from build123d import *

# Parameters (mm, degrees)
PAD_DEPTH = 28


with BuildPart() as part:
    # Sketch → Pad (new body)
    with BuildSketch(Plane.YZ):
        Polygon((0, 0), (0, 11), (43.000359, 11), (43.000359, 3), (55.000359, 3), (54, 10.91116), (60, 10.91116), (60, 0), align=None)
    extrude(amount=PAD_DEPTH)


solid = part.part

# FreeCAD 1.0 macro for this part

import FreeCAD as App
import Part
import Sketcher

V = App.Vector
Q = App.Units.Quantity


def add_polygon(sketch, points):
    """Adds a closed chain of lines whose ends are joined by coincident constraints."""
    first, n = sketch.GeometryCount, len(points)
    for a, b in zip(points, points[1:] + points[:1]):
        sketch.addGeometry(Part.LineSegment(App.Vector(*a, 0), App.Vector(*b, 0)), False)
    for i in range(n):
        sketch.addConstraint(Sketcher.Constraint("Coincident", first + i, 2, first + (i + 1) % n, 1))

doc = App.newDocument("Part")
body = doc.addObject("PartDesign::Body", "Body")

# Sketch on YZ plane
sketch1 = body.newObject("Sketcher::SketchObject", "Sketch")
sketch1.AttachmentSupport = (doc.getObject("YZ_Plane"), [""])
sketch1.MapMode = "FlatFace"
add_polygon(sketch1, [(0, 11), (0, 0), (60, 0), (60, 10.91116), (54, 10.91116), (55.000359, 3), (43.000359, 3), (43.000359, 11)])  # lines 0-7
sketch1.addConstraint([
    Sketcher.Constraint("Vertical", 0),
    Sketcher.Constraint("Horizontal", 1),
    Sketcher.Constraint("Vertical", 2),
    Sketcher.Constraint("Horizontal", 3),
    Sketcher.Constraint("Horizontal", 5),
    Sketcher.Constraint("Vertical", 6),
    Sketcher.Constraint("Horizontal", 7),
    Sketcher.Constraint("Coincident", 0, 2, -1, 1),
    Sketcher.Constraint("DistanceX", 1, 1, 1, 2, Q("60 mm")),
    Sketcher.Constraint("DistanceX", 3, 2, 3, 1, Q("6 mm")),
    Sketcher.Constraint("DistanceX", 5, 2, 5, 1, Q("12 mm")),
    Sketcher.Constraint("DistanceY", 0, 2, 0, 1, Q("11 mm")),
    Sketcher.Constraint("DistanceY", 6, 1, 6, 2, Q("8 mm")),
    Sketcher.Constraint("DistanceX", 7, 2, 7, 1, Q("43.000359 mm")),
    Sketcher.Constraint("DistanceY", 2, 1, 2, 2, Q("10.91116 mm")),
])
pad1 = body.newObject("PartDesign::Pad", "Pad")
pad1.Profile = sketch1
pad1.Length = 28

doc.recompute()
